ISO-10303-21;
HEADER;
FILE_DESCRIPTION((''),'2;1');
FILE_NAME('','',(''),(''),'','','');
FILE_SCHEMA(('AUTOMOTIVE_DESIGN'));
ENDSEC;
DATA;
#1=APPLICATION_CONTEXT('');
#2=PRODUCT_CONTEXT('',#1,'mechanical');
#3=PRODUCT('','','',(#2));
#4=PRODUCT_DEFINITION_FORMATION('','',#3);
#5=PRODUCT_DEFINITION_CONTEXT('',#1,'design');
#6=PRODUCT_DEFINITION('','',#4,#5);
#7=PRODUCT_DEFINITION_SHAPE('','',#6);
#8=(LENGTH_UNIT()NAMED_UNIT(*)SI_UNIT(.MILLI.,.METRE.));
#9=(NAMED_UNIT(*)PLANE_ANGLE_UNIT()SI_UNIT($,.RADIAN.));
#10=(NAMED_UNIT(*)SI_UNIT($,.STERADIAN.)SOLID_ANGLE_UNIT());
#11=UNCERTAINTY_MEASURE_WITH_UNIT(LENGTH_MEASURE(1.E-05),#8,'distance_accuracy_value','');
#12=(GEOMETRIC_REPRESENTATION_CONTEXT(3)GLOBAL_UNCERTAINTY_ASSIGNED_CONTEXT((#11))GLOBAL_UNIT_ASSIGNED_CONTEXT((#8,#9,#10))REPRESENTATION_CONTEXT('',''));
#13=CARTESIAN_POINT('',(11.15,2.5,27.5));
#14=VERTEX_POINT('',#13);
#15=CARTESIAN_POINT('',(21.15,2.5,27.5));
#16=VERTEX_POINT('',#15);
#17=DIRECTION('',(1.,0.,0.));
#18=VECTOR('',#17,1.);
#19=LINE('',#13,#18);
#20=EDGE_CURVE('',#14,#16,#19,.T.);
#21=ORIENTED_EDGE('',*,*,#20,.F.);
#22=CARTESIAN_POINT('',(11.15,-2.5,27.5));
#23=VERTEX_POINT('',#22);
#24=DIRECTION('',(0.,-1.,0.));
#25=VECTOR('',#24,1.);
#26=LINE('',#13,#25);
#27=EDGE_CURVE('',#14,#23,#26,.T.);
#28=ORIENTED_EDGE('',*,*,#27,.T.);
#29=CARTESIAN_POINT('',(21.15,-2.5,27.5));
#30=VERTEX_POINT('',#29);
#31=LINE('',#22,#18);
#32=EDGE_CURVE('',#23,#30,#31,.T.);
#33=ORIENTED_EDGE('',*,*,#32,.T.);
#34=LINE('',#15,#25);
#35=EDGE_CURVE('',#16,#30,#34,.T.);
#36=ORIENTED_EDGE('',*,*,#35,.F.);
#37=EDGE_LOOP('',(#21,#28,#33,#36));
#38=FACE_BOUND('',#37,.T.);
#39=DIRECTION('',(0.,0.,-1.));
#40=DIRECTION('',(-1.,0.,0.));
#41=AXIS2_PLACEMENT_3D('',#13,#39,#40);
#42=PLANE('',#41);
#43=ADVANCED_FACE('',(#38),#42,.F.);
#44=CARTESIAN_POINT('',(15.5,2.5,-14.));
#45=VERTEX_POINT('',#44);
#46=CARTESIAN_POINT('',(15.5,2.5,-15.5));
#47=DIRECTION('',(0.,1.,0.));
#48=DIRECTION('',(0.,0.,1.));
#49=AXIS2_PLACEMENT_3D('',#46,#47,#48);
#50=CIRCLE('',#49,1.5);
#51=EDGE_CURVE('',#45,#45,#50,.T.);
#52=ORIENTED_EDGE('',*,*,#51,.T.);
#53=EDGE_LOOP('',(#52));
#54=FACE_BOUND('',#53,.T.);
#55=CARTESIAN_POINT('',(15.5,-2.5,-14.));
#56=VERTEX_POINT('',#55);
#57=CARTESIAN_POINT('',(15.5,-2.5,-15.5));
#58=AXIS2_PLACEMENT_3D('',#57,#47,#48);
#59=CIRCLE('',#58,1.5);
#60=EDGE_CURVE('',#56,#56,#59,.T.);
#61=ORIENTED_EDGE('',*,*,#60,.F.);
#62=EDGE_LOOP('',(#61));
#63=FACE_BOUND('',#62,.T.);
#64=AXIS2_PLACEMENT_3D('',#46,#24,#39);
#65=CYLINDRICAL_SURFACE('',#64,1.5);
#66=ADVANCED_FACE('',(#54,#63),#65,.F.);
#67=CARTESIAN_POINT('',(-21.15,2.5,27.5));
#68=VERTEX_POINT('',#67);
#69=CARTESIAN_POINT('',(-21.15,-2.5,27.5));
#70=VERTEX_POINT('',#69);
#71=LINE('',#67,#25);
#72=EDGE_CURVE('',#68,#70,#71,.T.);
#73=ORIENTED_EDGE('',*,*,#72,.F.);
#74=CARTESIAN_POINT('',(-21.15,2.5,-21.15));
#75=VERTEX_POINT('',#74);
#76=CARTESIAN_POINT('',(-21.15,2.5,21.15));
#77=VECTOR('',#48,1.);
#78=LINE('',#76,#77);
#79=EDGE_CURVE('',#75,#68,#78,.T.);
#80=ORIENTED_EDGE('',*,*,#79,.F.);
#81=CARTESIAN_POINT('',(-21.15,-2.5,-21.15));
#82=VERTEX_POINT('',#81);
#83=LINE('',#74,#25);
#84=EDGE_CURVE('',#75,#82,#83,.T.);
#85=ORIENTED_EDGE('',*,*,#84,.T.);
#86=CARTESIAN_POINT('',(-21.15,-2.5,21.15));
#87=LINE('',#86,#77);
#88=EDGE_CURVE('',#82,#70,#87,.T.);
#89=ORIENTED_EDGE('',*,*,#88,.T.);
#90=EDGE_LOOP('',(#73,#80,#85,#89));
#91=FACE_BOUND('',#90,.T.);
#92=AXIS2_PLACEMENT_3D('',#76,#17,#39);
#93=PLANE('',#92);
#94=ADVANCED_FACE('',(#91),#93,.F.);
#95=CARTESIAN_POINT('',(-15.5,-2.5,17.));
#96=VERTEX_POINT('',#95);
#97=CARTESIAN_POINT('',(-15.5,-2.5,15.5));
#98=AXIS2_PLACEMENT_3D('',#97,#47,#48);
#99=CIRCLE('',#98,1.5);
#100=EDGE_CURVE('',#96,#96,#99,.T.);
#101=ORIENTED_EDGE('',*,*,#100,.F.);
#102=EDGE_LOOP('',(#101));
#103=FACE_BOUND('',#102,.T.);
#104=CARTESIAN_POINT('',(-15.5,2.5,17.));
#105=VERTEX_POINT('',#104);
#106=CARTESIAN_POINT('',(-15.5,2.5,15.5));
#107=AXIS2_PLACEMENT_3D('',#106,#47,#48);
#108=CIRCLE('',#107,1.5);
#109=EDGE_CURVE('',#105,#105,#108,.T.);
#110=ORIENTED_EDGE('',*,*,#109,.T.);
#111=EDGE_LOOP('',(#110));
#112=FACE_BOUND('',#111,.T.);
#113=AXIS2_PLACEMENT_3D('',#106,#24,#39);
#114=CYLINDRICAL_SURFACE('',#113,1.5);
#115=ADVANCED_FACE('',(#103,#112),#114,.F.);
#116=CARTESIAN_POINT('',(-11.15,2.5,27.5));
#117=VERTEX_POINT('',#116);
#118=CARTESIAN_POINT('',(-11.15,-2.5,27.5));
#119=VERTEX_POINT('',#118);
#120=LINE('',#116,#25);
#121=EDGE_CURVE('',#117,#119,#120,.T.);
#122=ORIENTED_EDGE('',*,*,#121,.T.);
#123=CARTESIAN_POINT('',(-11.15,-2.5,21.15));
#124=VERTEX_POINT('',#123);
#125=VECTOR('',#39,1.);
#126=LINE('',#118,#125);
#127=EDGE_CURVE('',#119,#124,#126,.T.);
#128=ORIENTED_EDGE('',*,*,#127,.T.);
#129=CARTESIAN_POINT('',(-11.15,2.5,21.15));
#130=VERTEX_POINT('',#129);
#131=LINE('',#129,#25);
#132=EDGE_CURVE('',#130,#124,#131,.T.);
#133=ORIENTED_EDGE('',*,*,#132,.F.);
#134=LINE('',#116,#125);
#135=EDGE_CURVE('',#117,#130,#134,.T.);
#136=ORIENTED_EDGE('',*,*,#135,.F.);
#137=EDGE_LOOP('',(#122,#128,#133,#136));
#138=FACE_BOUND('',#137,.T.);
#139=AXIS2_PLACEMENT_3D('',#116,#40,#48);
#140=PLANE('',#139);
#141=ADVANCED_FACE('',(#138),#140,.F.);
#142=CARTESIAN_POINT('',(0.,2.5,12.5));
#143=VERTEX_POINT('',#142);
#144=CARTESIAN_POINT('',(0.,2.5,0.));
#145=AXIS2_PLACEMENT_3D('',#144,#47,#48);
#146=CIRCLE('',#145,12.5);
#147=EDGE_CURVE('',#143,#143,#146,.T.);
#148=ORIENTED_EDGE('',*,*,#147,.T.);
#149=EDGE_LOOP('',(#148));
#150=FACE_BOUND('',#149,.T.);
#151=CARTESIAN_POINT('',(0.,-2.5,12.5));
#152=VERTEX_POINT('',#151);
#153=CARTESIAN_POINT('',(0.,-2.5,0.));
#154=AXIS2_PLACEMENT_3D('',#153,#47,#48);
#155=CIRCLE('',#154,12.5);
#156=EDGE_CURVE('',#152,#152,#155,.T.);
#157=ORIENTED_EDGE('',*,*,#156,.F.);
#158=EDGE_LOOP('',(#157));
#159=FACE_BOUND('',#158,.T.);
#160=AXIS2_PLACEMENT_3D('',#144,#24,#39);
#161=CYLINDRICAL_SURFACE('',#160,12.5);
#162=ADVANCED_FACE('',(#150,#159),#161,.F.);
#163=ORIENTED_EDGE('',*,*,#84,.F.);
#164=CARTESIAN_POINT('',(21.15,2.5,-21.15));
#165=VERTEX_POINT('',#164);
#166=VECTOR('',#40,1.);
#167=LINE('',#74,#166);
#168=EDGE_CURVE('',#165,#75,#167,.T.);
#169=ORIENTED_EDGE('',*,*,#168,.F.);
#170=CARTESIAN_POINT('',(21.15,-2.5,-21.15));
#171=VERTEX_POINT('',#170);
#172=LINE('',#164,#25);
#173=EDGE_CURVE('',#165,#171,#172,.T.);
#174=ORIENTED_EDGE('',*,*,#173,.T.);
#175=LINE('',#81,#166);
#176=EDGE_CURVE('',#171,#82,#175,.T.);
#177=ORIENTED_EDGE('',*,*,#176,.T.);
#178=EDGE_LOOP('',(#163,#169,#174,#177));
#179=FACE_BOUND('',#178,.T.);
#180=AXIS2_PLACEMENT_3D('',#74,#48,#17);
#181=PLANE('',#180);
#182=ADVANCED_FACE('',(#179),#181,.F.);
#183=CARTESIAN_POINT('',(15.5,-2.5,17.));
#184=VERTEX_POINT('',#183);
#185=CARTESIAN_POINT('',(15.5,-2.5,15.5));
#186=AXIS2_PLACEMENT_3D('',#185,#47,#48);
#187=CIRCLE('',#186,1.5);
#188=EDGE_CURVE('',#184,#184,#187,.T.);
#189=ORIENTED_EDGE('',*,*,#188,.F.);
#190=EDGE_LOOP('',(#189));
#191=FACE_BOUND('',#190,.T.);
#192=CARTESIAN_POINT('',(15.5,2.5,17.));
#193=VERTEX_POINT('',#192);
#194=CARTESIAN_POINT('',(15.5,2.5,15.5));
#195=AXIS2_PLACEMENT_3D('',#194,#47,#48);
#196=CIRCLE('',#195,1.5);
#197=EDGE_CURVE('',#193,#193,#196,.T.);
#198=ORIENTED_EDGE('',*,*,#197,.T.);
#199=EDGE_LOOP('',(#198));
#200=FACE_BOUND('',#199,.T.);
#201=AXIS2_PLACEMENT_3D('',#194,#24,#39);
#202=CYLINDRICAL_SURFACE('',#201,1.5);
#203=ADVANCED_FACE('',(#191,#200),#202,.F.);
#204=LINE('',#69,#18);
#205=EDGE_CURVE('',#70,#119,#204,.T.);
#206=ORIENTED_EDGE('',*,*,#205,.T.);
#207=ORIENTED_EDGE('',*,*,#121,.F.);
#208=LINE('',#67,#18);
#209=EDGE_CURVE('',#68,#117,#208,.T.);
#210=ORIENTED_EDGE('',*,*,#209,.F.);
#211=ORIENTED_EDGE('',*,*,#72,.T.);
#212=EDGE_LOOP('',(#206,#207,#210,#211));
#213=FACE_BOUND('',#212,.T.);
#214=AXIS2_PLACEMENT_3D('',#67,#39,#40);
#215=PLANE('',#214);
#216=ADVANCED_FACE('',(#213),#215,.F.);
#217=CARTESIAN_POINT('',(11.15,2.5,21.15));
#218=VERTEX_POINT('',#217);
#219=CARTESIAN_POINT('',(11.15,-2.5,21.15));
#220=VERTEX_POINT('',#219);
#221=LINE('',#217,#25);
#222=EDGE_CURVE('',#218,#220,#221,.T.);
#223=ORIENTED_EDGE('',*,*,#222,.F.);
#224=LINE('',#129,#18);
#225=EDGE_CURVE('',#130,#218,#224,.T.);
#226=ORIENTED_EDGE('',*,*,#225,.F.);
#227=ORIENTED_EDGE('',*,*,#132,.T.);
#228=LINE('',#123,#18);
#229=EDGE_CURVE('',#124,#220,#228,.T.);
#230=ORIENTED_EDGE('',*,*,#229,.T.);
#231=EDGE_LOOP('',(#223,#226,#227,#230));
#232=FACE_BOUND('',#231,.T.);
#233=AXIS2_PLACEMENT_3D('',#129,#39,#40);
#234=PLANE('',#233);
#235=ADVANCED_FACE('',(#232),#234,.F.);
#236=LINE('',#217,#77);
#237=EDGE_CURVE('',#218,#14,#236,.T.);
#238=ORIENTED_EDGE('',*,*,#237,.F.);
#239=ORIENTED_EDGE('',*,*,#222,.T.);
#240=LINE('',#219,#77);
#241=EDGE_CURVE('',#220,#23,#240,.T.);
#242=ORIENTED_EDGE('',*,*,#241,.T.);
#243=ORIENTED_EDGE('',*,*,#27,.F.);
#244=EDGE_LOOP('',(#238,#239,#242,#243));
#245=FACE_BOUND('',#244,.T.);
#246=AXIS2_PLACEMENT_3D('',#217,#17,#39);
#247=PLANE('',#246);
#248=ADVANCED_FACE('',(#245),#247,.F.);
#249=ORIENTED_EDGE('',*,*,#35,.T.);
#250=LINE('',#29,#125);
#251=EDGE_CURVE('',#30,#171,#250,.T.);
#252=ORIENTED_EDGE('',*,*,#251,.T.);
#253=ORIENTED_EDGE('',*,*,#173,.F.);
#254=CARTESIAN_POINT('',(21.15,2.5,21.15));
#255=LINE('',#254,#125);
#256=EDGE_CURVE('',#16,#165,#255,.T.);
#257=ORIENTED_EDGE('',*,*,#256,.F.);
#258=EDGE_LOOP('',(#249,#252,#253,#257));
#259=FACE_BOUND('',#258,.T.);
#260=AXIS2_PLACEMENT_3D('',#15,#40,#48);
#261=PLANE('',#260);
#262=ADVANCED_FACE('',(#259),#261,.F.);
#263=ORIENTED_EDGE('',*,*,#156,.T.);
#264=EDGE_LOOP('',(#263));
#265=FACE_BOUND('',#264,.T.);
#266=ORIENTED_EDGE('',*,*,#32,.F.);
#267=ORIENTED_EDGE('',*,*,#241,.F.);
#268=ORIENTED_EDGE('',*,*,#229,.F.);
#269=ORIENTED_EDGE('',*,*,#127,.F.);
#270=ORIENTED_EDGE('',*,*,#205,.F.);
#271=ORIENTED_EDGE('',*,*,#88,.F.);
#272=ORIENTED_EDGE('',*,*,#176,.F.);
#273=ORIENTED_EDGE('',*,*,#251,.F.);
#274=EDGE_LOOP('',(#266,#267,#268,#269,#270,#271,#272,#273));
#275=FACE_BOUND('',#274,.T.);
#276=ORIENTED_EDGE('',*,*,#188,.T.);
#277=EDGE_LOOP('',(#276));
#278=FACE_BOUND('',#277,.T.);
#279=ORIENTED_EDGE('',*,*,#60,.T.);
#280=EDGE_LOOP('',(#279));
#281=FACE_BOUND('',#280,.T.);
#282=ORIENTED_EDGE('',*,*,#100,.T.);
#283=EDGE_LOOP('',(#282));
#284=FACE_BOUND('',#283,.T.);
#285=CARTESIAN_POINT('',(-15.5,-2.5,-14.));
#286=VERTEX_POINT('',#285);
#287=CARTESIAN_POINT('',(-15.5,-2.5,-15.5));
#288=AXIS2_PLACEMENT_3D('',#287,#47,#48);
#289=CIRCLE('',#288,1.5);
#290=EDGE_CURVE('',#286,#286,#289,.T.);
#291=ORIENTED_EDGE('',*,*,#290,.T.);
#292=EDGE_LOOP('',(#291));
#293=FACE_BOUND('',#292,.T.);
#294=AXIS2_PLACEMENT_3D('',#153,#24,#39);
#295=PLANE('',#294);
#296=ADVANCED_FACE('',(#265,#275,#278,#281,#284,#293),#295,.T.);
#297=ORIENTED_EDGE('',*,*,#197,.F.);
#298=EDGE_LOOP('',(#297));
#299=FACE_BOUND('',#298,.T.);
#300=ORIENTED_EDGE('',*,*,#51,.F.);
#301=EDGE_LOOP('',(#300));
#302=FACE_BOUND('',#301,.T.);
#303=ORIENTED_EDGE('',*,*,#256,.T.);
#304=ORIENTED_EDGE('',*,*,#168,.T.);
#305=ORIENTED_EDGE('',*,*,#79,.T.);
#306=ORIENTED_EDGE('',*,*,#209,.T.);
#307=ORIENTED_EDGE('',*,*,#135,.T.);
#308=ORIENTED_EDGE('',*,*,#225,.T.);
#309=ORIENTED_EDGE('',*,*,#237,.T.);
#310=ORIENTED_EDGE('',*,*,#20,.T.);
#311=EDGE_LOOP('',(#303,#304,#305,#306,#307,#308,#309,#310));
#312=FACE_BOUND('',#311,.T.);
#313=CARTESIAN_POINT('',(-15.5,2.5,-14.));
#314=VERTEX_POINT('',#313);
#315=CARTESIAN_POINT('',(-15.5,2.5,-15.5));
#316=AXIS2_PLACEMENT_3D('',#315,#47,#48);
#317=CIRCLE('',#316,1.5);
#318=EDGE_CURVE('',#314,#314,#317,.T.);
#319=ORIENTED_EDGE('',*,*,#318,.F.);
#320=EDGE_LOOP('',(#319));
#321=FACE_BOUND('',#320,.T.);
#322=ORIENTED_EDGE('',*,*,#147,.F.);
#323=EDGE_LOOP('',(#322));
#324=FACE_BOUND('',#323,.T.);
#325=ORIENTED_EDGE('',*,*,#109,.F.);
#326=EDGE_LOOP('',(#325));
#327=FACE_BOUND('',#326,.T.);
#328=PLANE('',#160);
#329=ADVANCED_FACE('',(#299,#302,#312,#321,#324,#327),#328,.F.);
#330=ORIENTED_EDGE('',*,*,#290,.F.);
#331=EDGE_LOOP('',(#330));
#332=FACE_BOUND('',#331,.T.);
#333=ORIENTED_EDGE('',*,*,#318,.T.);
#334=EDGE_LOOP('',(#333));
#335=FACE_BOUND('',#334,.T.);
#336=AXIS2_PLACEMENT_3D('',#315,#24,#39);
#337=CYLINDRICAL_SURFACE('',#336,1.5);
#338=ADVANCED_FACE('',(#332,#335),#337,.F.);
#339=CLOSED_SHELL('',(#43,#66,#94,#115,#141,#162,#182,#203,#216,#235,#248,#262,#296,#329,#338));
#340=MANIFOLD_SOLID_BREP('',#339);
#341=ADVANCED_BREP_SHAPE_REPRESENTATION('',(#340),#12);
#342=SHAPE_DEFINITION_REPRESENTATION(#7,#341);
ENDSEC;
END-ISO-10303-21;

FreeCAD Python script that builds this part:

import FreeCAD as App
import Part
import Sketcher
from FreeCAD import Vector
Q = App.Units.Quantity


def add_polygon(sketch, points):
    """Adds a closed chain of lines whose ends are joined by coincident constraints."""
    first, n = sketch.GeometryCount, len(points)
    for a, b in zip(points, points[1:] + points[:1]):
        sketch.addGeometry(Part.LineSegment(App.Vector(*a, 0), App.Vector(*b, 0)), False)
    for i in range(n):
        sketch.addConstraint(Sketcher.Constraint("Coincident", first + i, 2, first + (i + 1) % n, 1))

doc = App.newDocument("Part")
params = doc.addObject("Spreadsheet::Sheet", "Params")
for row, (alias, value) in enumerate([
    ("sketch1_diameter", "3 mm"),
    ("sketch1_diameter2", "25 mm"),
    ("sketch1_width", "10 mm"),
    ("sketch1_width2", "22.3 mm"),
    ("sketch1_height", "6.35 mm"),
    ("pad1_length", "5 mm"),
], start=1):
    params.set(f"A{row}", alias)
    params.set(f"B{row}", "=" + value)
    params.setAlias(f"B{row}", alias)

body = doc.addObject("PartDesign::Body", "Body")

# Sketch on XZ plane
sketch1 = body.newObject("Sketcher::SketchObject", "Sketch")
sketch1.AttachmentSupport = (doc.getObject("XZ_Plane"), [""])
sketch1.MapMode = "FlatFace"
add_polygon(sketch1, [(-21.15, 27.5), (-11.15, 27.5), (-11.15, 21.15), (11.15, 21.15), (11.15, 27.5), (21.15, 27.5), (21.15, -21.15), (-21.15, -21.15)])  # lines 0-7
sketch1.addGeometry(Part.Circle(Vector(-15.5, 15.5, 0), Vector(0, 0, 1), 1.5), False)  # 8
sketch1.addGeometry(Part.Circle(Vector(15.5, 15.5, 0), Vector(0, 0, 1), 1.5), False)  # 9
sketch1.addGeometry(Part.Circle(Vector(-15.5, -15.5, 0), Vector(0, 0, 1), 1.5), False)  # 10
sketch1.addGeometry(Part.Circle(Vector(0, 0, 0), Vector(0, 0, 1), 12.5), False)  # 11
sketch1.addGeometry(Part.Circle(Vector(15.5, -15.5, 0), Vector(0, 0, 1), 1.5), False)  # 12
sketch1.addConstraint(Sketcher.Constraint("Horizontal", 0))
sketch1.addConstraint(Sketcher.Constraint("Vertical", 1))
sketch1.addConstraint(Sketcher.Constraint("Horizontal", 2))
sketch1.addConstraint(Sketcher.Constraint("Vertical", 3))
sketch1.addConstraint(Sketcher.Constraint("Horizontal", 4))
sketch1.addConstraint(Sketcher.Constraint("Vertical", 5))
sketch1.addConstraint(Sketcher.Constraint("Horizontal", 6))
sketch1.addConstraint(Sketcher.Constraint("Vertical", 7))
sketch1.addConstraint(Sketcher.Constraint("Coincident", 11, 3, -1, 1))
sketch1.addConstraint(Sketcher.Constraint("Equal", 8, 9))
sketch1.addConstraint(Sketcher.Constraint("Equal", 9, 10))
sketch1.addConstraint(Sketcher.Constraint("Equal", 10, 12))
sketch1.addConstraint(Sketcher.Constraint("Symmetric", 9, 3, 10, 3, -1, 1))
sketch1.addConstraint(Sketcher.Constraint("Symmetric", 8, 3, 12, 3, -1, 1))
sketch1.addConstraint(Sketcher.Constraint("Symmetric", 8, 3, 9, 3, -2))
sketch1.addConstraint(Sketcher.Constraint("Symmetric", 0, 2, 3, 2, -2))
sketch1.addConstraint(Sketcher.Constraint("Equal", 0, 4))
sketch1.addConstraint(Sketcher.Constraint("Diameter", 8, Q("3 mm")))
sketch1.addConstraint(Sketcher.Constraint("Diameter", 11, Q("25 mm")))
sketch1.addConstraint(Sketcher.Constraint("DistanceX", 0, 1, 0, 2, Q("10 mm")))
sketch1.addConstraint(Sketcher.Constraint("DistanceX", 2, 1, 2, 2, Q("22.3 mm")))
sketch1.addConstraint(Sketcher.Constraint("DistanceX", 8, 3, 9, 3, Q("31 mm")))
sketch1.addConstraint(Sketcher.Constraint("DistanceY", 10, 3, 8, 3, Q("31 mm")))
sketch1.addConstraint(Sketcher.Constraint("DistanceY", 8, 3, 0, 2, Q("12 mm")))
sketch1.addConstraint(Sketcher.Constraint("DistanceY", 1, 2, 1, 1, Q("6.35 mm")))
sketch1.addConstraint(Sketcher.Constraint("DistanceY", 5, 2, 5, 1, Q("48.65 mm")))
sketch1.setExpression("Constraints[25]", "Params.sketch1_diameter")
sketch1.setExpression("Constraints[26]", "Params.sketch1_diameter2")
sketch1.setExpression("Constraints[27]", "Params.sketch1_width")
sketch1.setExpression("Constraints[28]", "Params.sketch1_width2")
sketch1.setExpression("Constraints[32]", "Params.sketch1_height")
pad1 = body.newObject("PartDesign::Pad", "Pad")
pad1.Profile = sketch1
pad1.setExpression("Length", "Params.pad1_length")
pad1.Midplane = True

doc.recompute()
